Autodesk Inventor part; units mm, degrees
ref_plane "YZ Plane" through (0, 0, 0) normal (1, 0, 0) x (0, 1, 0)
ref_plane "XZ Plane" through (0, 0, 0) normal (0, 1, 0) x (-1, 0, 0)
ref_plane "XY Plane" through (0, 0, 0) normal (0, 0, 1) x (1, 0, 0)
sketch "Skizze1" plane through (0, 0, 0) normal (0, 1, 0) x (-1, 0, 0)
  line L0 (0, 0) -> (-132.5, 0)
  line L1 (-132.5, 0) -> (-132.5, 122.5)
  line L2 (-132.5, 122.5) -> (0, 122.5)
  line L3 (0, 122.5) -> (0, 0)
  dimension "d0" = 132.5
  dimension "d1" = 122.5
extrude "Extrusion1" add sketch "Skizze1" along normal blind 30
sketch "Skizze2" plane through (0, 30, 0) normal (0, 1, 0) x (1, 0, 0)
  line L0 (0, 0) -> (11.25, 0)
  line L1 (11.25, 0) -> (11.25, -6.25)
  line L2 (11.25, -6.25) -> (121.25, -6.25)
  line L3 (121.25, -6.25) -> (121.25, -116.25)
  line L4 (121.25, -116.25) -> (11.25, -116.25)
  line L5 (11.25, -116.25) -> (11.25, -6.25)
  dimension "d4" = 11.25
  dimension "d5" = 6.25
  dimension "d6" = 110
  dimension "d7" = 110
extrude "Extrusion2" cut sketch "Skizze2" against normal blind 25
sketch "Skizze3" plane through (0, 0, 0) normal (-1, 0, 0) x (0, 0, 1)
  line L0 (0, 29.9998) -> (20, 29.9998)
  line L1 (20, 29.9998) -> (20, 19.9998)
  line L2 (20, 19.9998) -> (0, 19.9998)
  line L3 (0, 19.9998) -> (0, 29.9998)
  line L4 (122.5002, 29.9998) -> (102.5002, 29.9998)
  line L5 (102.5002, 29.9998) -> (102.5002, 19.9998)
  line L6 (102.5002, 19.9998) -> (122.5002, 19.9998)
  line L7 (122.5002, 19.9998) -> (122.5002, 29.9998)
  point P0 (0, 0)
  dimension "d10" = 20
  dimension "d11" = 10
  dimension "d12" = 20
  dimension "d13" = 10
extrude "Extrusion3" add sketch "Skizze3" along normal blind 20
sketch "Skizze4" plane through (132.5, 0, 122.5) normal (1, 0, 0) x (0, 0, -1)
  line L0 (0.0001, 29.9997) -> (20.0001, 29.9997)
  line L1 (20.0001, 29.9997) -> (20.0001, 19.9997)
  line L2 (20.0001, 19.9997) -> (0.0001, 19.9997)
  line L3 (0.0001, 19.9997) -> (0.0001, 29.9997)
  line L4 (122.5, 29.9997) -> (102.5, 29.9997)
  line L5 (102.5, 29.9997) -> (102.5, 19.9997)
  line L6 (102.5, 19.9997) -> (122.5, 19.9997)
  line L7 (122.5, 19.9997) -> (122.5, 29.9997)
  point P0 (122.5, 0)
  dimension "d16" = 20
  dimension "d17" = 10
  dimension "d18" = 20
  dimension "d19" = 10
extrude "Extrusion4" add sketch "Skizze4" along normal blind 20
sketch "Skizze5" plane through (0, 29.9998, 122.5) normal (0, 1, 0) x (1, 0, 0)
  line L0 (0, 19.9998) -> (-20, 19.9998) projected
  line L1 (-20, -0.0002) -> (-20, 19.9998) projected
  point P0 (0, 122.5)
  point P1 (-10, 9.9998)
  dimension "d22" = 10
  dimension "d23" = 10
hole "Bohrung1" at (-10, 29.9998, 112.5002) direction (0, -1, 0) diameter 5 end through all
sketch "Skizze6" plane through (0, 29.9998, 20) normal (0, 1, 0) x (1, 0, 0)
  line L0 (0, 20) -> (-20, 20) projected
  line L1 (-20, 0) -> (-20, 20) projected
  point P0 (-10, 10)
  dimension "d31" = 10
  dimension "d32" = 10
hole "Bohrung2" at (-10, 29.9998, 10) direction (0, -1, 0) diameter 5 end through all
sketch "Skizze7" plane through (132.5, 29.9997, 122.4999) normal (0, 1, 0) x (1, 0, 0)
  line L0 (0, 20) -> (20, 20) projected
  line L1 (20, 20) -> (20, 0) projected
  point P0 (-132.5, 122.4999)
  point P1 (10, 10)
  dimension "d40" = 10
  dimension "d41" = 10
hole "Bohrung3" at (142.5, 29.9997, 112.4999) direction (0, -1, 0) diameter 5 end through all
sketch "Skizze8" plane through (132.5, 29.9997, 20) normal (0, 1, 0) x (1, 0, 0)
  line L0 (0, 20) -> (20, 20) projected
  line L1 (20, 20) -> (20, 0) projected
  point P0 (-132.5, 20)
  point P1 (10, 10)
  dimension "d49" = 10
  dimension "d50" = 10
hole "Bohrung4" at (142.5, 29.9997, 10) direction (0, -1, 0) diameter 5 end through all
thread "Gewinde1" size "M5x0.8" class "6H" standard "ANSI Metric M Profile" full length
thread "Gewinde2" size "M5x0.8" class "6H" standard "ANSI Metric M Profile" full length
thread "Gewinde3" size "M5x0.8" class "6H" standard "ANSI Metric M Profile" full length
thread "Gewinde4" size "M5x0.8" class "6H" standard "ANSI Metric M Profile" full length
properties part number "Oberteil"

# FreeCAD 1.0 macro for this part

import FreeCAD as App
import Part
import Sketcher
from FreeCAD import Vector

doc = App.newDocument("Part")
params = doc.addObject("Spreadsheet::Sheet", "Params")
for row, (alias, value) in enumerate([
    ("sketch1_width", "132.5 mm"),
    ("sketch1_height", "122.5 mm"),
    ("pad1_length", "30 mm"),
    ("sketch2_width", "110 mm"),
    ("pocket1_length", "25 mm"),
    ("sketch3_width", "10 mm"),
    ("sketch3_height", "20 mm"),
    ("pad2_length", "20 mm"),
    ("sketch4_width", "10 mm"),
    ("sketch4_height", "20 mm"),
    ("pad3_length", "20 mm"),
    ("sketch5_diameter", "5 mm"),
    ("hole_diameter", "5 mm"),
    ("sketch6_diameter", "5 mm"),
    ("hole2_diameter", "5 mm"),
    ("sketch7_diameter", "5 mm"),
    ("hole3_diameter", "5 mm"),
    ("sketch8_diameter", "5 mm"),
    ("hole4_diameter", "5 mm"),
], start=1):
    params.set(f"A{row}", alias)
    params.set(f"B{row}", "=" + value)
    params.setAlias(f"B{row}", alias)

body = doc.addObject("PartDesign::Body", "Body")

sketch1 = body.newObject("Sketcher::SketchObject", "Sketch")
sketch1.AttachmentSupport = (doc.getObject("XZ_Plane"), [""])
sketch1.MapMode = "FlatFace"
sketch1.addGeometry([
    Part.LineSegment(Vector(132, 0, 0), Vector(0, 0, 0)),
    Part.LineSegment(Vector(0, 0, 0), Vector(0, 122, 0)),
    Part.LineSegment(Vector(0, 122, 0), Vector(132, 122, 0)),
    Part.LineSegment(Vector(132, 122, 0), Vector(132, 0, 0)),
], False)
sketch1.addConstraint([
    Sketcher.Constraint("Coincident", 0, 2, 1, 1),
    Sketcher.Constraint("Coincident", 1, 2, 2, 1),
    Sketcher.Constraint("Coincident", 2, 2, 3, 1),
    Sketcher.Constraint("Coincident", 3, 2, 0, 1),
    Sketcher.Constraint("Horizontal", 0),
    Sketcher.Constraint("Vertical", 1),
    Sketcher.Constraint("Horizontal", 2),
    Sketcher.Constraint("Vertical", 3),
    Sketcher.Constraint("Coincident", 0, 2, -1, 1),
    Sketcher.Constraint("DistanceX", 0, 2, 0, 1, 132.5),
    Sketcher.Constraint("DistanceY", 1, 1, 1, 2, 122.5),
])
sketch1.setExpression("Constraints[9]", "Params.sketch1_width")
sketch1.setExpression("Constraints[10]", "Params.sketch1_height")
pad1 = body.newObject("PartDesign::Pad", "Pad")
pad1.Profile = sketch1
pad1.setExpression("Length", "Params.pad1_length")
pad1.Reversed = True

sketch2 = body.newObject("Sketcher::SketchObject", "Sketch001")
sketch2.AttachmentSupport = (doc.getObject("XZ_Plane"), [""])
sketch2.MapMode = "FlatFace"
sketch2.AttachmentOffset = App.Placement(Vector(0, 0, -30), App.Rotation())
sketch2.addGeometry([
    Part.LineSegment(Vector(121, 6, 0), Vector(11, 6, 0)),
    Part.LineSegment(Vector(11, 6, 0), Vector(11, 116, 0)),
    Part.LineSegment(Vector(11, 116, 0), Vector(121, 116, 0)),
    Part.LineSegment(Vector(121, 116, 0), Vector(121, 6, 0)),
], False)
sketch2.addConstraint([
    Sketcher.Constraint("Coincident", 0, 2, 1, 1),
    Sketcher.Constraint("Coincident", 1, 2, 2, 1),
    Sketcher.Constraint("Coincident", 2, 2, 3, 1),
    Sketcher.Constraint("Coincident", 3, 2, 0, 1),
    Sketcher.Constraint("Horizontal", 0),
    Sketcher.Constraint("Vertical", 1),
    Sketcher.Constraint("Horizontal", 2),
    Sketcher.Constraint("Vertical", 3),
    Sketcher.Constraint("Equal", 2, 1),
    Sketcher.Constraint("DistanceX", 0, 2, 0, 1, 110.0),
    Sketcher.Constraint("DistanceX", -1, 1, 0, 2, 11.25),
    Sketcher.Constraint("DistanceY", -1, 1, 0, 2, 6.25),
])
sketch2.setExpression("Constraints[9]", "Params.sketch2_width")
pocket1 = body.newObject("PartDesign::Pocket", "Pocket")
pocket1.Profile = sketch2
pocket1.setExpression("Length", "Params.pocket1_length")
pocket1.Reversed = True

sketch3 = body.newObject("Sketcher::SketchObject", "Sketch002")
sketch3.AttachmentSupport = (doc.getObject("YZ_Plane"), [""])
sketch3.MapMode = "FlatFace"
sketch3.addGeometry([
    Part.LineSegment(Vector(30, 20, 0), Vector(30, 0, 0)),
    Part.LineSegment(Vector(30, 0, 0), Vector(20, 0, 0)),
    Part.LineSegment(Vector(20, 0, 0), Vector(20, 20, 0)),
    Part.LineSegment(Vector(20, 20, 0), Vector(30, 20, 0)),
    Part.LineSegment(Vector(20, 123, 0), Vector(30, 123, 0)),
    Part.LineSegment(Vector(30, 123, 0), Vector(30, 103, 0)),
    Part.LineSegment(Vector(30, 103, 0), Vector(20, 103, 0)),
    Part.LineSegment(Vector(20, 103, 0), Vector(20, 123, 0)),
], False)
sketch3.addConstraint([
    Sketcher.Constraint("Coincident", 0, 2, 1, 1),
    Sketcher.Constraint("Coincident", 1, 2, 2, 1),
    Sketcher.Constraint("Coincident", 2, 2, 3, 1),
    Sketcher.Constraint("Coincident", 3, 2, 0, 1),
    Sketcher.Constraint("Coincident", 4, 2, 5, 1),
    Sketcher.Constraint("Coincident", 5, 2, 6, 1),
    Sketcher.Constraint("Coincident", 6, 2, 7, 1),
    Sketcher.Constraint("Coincident", 7, 2, 4, 1),
    Sketcher.Constraint("Vertical", 0),
    Sketcher.Constraint("Horizontal", 1),
    Sketcher.Constraint("Vertical", 2),
    Sketcher.Constraint("Horizontal", 3),
    Sketcher.Constraint("Horizontal", 4),
    Sketcher.Constraint("Vertical", 5),
    Sketcher.Constraint("Horizontal", 6),
    Sketcher.Constraint("Vertical", 7),
    Sketcher.Constraint("PointOnObject", 0, 2, -1),
    Sketcher.Constraint("Vertical", 3, 2, 4, 2),
    Sketcher.Constraint("Vertical", 2, 2, 6, 2),
    Sketcher.Constraint("Equal", 2, 5),
    Sketcher.Constraint("DistanceX", 1, 2, 1, 1, 10.0),
    Sketcher.Constraint("DistanceY", 0, 2, 0, 1, 20.0),
    Sketcher.Constraint("DistanceX", -1, 1, 1, 2, 19.9998),
    Sketcher.Constraint("DistanceY", -1, 1, 4, 2, 122.5002),
])
sketch3.setExpression("Constraints[20]", "Params.sketch3_width")
sketch3.setExpression("Constraints[21]", "Params.sketch3_height")
pad2 = body.newObject("PartDesign::Pad", "Pad001")
pad2.Profile = sketch3
pad2.setExpression("Length", "Params.pad2_length")
pad2.Reversed = True

sketch4 = body.newObject("Sketcher::SketchObject", "Sketch003")
sketch4.AttachmentSupport = (doc.getObject("YZ_Plane"), [""])
sketch4.MapMode = "FlatFace"
sketch4.AttachmentOffset = App.Placement(Vector(0, 0, 132.5), App.Rotation())
sketch4.addGeometry([
    Part.LineSegment(Vector(30, 102, 0), Vector(30, 122, 0)),
    Part.LineSegment(Vector(30, 122, 0), Vector(20, 122, 0)),
    Part.LineSegment(Vector(20, 122, 0), Vector(20, 102, 0)),
    Part.LineSegment(Vector(20, 102, 0), Vector(30, 102, 0)),
    Part.LineSegment(Vector(20, 0, 0), Vector(30, 0, 0)),
    Part.LineSegment(Vector(30, 0, 0), Vector(30, 20, 0)),
    Part.LineSegment(Vector(30, 20, 0), Vector(20, 20, 0)),
    Part.LineSegment(Vector(20, 20, 0), Vector(20, 0, 0)),
], False)
sketch4.addConstraint([
    Sketcher.Constraint("Coincident", 0, 2, 1, 1),
    Sketcher.Constraint("Coincident", 1, 2, 2, 1),
    Sketcher.Constraint("Coincident", 2, 2, 3, 1),
    Sketcher.Constraint("Coincident", 3, 2, 0, 1),
    Sketcher.Constraint("Coincident", 4, 2, 5, 1),
    Sketcher.Constraint("Coincident", 5, 2, 6, 1),
    Sketcher.Constraint("Coincident", 6, 2, 7, 1),
    Sketcher.Constraint("Coincident", 7, 2, 4, 1),
    Sketcher.Constraint("Vertical", 0),
    Sketcher.Constraint("Horizontal", 1),
    Sketcher.Constraint("Vertical", 2),
    Sketcher.Constraint("Horizontal", 3),
    Sketcher.Constraint("Horizontal", 4),
    Sketcher.Constraint("Vertical", 5),
    Sketcher.Constraint("Horizontal", 6),
    Sketcher.Constraint("Vertical", 7),
    Sketcher.Constraint("PointOnObject", 4, 2, -1),
    Sketcher.Constraint("Vertical", 3, 2, 4, 2),
    Sketcher.Constraint("Vertical", 2, 2, 6, 2),
    Sketcher.Constraint("Equal", 2, 5),
    Sketcher.Constraint("DistanceX", 1, 2, 1, 1, 10.0),
    Sketcher.Constraint("DistanceY", 0, 1, 0, 2, 20.0),
    Sketcher.Constraint("DistanceX", -1, 1, 1, 2, 19.9997),
    Sketcher.Constraint("DistanceY", -1, 1, 0, 2, 122.5),
])
sketch4.setExpression("Constraints[20]", "Params.sketch4_width")
sketch4.setExpression("Constraints[21]", "Params.sketch4_height")
pad3 = body.newObject("PartDesign::Pad", "Pad002")
pad3.Profile = sketch4
pad3.setExpression("Length", "Params.pad3_length")

sketch5 = body.newObject("Sketcher::SketchObject", "Sketch004")
sketch5.AttachmentSupport = (doc.getObject("XZ_Plane"), [""])
sketch5.MapMode = "FlatFace"
sketch5.AttachmentOffset = App.Placement(Vector(0, 0, -29.9998), App.Rotation())
sketch5.addGeometry(Part.Circle(Vector(-10, 112.5, 0), Vector(0, 0, 1), 2.5), False)
sketch5.addConstraint([
    Sketcher.Constraint("Diameter", 0, 5.0),
    Sketcher.Constraint("DistanceX", 0, 3, -1, 1, 10.0),
    Sketcher.Constraint("DistanceY", -1, 1, 0, 3, 112.5002),
])
sketch5.setExpression("Constraints[0]", "Params.sketch5_diameter")
doc.recompute()
hole = body.newObject("PartDesign::Hole", "Hole")
hole.Profile = sketch5
hole.ThreadType = "None"
hole.setExpression("Diameter", "Params.hole_diameter")
hole.DepthType = "ThroughAll"
hole.Reversed = True

sketch6 = body.newObject("Sketcher::SketchObject", "Sketch005")
sketch6.AttachmentSupport = (doc.getObject("XZ_Plane"), [""])
sketch6.MapMode = "FlatFace"
sketch6.AttachmentOffset = App.Placement(Vector(0, 0, -29.9998), App.Rotation())
sketch6.addGeometry(Part.Circle(Vector(-10, 10, 0), Vector(0, 0, 1), 2.5), False)
sketch6.addConstraint([
    Sketcher.Constraint("Diameter", 0, 5.0),
    Sketcher.Constraint("DistanceX", 0, 3, -1, 1, 10.0),
    Sketcher.Constraint("DistanceY", -1, 1, 0, 3, 10.0),
])
sketch6.setExpression("Constraints[0]", "Params.sketch6_diameter")
doc.recompute()
hole2 = body.newObject("PartDesign::Hole", "Hole001")
hole2.Profile = sketch6
hole2.ThreadType = "None"
hole2.setExpression("Diameter", "Params.hole2_diameter")
hole2.DepthType = "ThroughAll"
hole2.Reversed = True

sketch7 = body.newObject("Sketcher::SketchObject", "Sketch006")
sketch7.AttachmentSupport = (doc.getObject("XZ_Plane"), [""])
sketch7.MapMode = "FlatFace"
sketch7.AttachmentOffset = App.Placement(Vector(0, 0, -29.9997), App.Rotation())
sketch7.addGeometry(Part.Circle(Vector(142.5, 112.5, 0), Vector(0, 0, 1), 2.5), False)
sketch7.addConstraint([
    Sketcher.Constraint("Diameter", 0, 5.0),
    Sketcher.Constraint("DistanceX", -1, 1, 0, 3, 142.5),
    Sketcher.Constraint("DistanceY", -1, 1, 0, 3, 112.5),
])
sketch7.setExpression("Constraints[0]", "Params.sketch7_diameter")
doc.recompute()
hole3 = body.newObject("PartDesign::Hole", "Hole002")
hole3.Profile = sketch7
hole3.ThreadType = "None"
hole3.setExpression("Diameter", "Params.hole3_diameter")
hole3.DepthType = "ThroughAll"
hole3.Reversed = True

sketch8 = body.newObject("Sketcher::SketchObject", "Sketch007")
sketch8.AttachmentSupport = (doc.getObject("XZ_Plane"), [""])
sketch8.MapMode = "FlatFace"
sketch8.AttachmentOffset = App.Placement(Vector(0, 0, -29.9997), App.Rotation())
sketch8.addGeometry(Part.Circle(Vector(142.5, 10, 0), Vector(0, 0, 1), 2.5), False)
sketch8.addConstraint([
    Sketcher.Constraint("Diameter", 0, 5.0),
    Sketcher.Constraint("DistanceY", -1, 1, 0, 3, 10.0),
    Sketcher.Constraint("DistanceX", -1, 1, 0, 3, 142.5),
])
sketch8.setExpression("Constraints[0]", "Params.sketch8_diameter")
doc.recompute()
hole4 = body.newObject("PartDesign::Hole", "Hole003")
hole4.Profile = sketch8
hole4.ThreadType = "None"
hole4.setExpression("Diameter", "Params.hole4_diameter")
hole4.DepthType = "ThroughAll"
hole4.Reversed = True

doc.recompute()
